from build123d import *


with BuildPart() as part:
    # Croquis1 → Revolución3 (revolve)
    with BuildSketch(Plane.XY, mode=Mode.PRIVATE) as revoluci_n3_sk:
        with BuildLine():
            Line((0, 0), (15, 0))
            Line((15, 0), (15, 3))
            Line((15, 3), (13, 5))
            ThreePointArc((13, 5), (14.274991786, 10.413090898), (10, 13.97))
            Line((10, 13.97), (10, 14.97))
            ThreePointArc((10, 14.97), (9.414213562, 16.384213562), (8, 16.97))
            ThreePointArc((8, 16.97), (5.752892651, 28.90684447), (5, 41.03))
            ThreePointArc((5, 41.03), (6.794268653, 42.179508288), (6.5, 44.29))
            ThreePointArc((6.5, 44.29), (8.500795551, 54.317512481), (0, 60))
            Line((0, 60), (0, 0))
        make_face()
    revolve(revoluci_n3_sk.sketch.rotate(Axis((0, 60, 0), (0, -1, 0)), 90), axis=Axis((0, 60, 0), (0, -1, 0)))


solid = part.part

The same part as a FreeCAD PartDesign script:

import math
import FreeCAD as App
import Part
import Sketcher
from FreeCAD import Vector
Q = App.Units.Quantity

doc = App.newDocument("Part")
body = doc.addObject("PartDesign::Body", "Body")

sketch1 = doc.addObject("Sketcher::SketchObject", "Sketch")
body.addObject(sketch1)
sketch1.AttachmentSupport = (doc.XY_Plane, [""])
sketch1.MapMode = "FlatFace"
sketch1.addGeometry([
    Part.LineSegment(Vector(0, 0, 0), Vector(15, 0, 0)),
    Part.LineSegment(Vector(15, 0, 0), Vector(15, 3, 0)),
    Part.LineSegment(Vector(15, 3, 0), Vector(13, 5, 0)),
    Part.ArcOfCircle(Part.Circle(Vector(9.3, 8.7, 0), Vector(0, 0, 1), 5.3), math.radians(-45), math.radians(82)),
    Part.LineSegment(Vector(10, 14, 0), Vector(10, 15, 0)),
    Part.ArcOfCircle(Part.Circle(Vector(8, 15, 0), Vector(0, 0, 1), 2), math.radians(0), math.radians(90)),
    Part.ArcOfCircle(Part.Circle(Vector(103, 41, 0), Vector(0, 0, 1), 98), math.radians(-180), math.radians(-165.79)),
    Part.ArcOfCircle(Part.Circle(Vector(5, 43, 0), Vector(0, 0, 1), 2), math.radians(-90), math.radians(41)),
    Part.ArcOfCircle(Part.Circle(Vector(0, 50.8, 0), Vector(0, 0, 1), 9.2), math.radians(-45), math.radians(90)),
    Part.LineSegment(Vector(0, 60, 0), Vector(0, 0, 0)),
], False)
sketch1.addConstraint([
    Sketcher.Constraint("Coincident", 0, 2, 1, 1),
    Sketcher.Constraint("Coincident", 1, 2, 2, 1),
    Sketcher.Constraint("Coincident", 2, 2, 3, 1),
    Sketcher.Constraint("Coincident", 3, 2, 4, 1),
    Sketcher.Constraint("Tangent", 4, 2, 5, 1),
    Sketcher.Constraint("Coincident", 5, 2, 6, 2),
    Sketcher.Constraint("Coincident", 6, 1, 7, 1),
    Sketcher.Constraint("Coincident", 7, 2, 8, 1),
    Sketcher.Constraint("Coincident", 8, 2, 9, 1),
    Sketcher.Constraint("Coincident", 9, 2, 0, 1),
    Sketcher.Constraint("Horizontal", 0),
    Sketcher.Constraint("Vertical", 1),
    Sketcher.Constraint("Vertical", 4),
    Sketcher.Constraint("Vertical", 9),
    Sketcher.Constraint("Coincident", 9, 2, -1, 1),
    Sketcher.Constraint("PointOnObject", 8, 3, -2),
    Sketcher.Constraint("Vertical", 7, 3, 6, 1),
    Sketcher.Constraint("Radius", 5, 2.0),
    Sketcher.Constraint("DistanceX", 0, 1, 0, 2, 15.0),
    Sketcher.Constraint("DistanceY", 1, 1, 1, 2, 3.0),
    Sketcher.Constraint("DistanceY", 4, 1, 4, 2, 1.0),
    Sketcher.Constraint("DistanceY", 9, 2, 9, 1, 60.0),
    Sketcher.Constraint("Angle", 2, Q("135 deg")),
    Sketcher.Constraint("DistanceX", -1, 1, 5, 3, 8.0),
    Sketcher.Constraint("DistanceX", -1, 1, 7, 3, 5.0),
    Sketcher.Constraint("DistanceX", -1, 1, 2, 2, 13.0),
    Sketcher.Constraint("DistanceX", -1, 1, 5, 2, 8.0),
    Sketcher.Constraint("DistanceX", -1, 1, 7, 2, 6.5),
    Sketcher.Constraint("Radius", 6, 97.9806),
    Sketcher.Constraint("DistanceY", -1, 1, 5, 3, 14.97),
    Sketcher.Constraint("DistanceY", -1, 1, 6, 1, 41.03),
    Sketcher.Constraint("DistanceY", -1, 1, 7, 2, 44.29),
    Sketcher.Constraint("Radius", 3, 5.284746),
])
revolution = doc.addObject("PartDesign::Revolution", "Revolution")
body.addObject(revolution)
revolution.Profile = sketch1
revolution.ReferenceAxis = (sketch1, ["V_Axis"])
revolution.Angle = 360

doc.recompute()
